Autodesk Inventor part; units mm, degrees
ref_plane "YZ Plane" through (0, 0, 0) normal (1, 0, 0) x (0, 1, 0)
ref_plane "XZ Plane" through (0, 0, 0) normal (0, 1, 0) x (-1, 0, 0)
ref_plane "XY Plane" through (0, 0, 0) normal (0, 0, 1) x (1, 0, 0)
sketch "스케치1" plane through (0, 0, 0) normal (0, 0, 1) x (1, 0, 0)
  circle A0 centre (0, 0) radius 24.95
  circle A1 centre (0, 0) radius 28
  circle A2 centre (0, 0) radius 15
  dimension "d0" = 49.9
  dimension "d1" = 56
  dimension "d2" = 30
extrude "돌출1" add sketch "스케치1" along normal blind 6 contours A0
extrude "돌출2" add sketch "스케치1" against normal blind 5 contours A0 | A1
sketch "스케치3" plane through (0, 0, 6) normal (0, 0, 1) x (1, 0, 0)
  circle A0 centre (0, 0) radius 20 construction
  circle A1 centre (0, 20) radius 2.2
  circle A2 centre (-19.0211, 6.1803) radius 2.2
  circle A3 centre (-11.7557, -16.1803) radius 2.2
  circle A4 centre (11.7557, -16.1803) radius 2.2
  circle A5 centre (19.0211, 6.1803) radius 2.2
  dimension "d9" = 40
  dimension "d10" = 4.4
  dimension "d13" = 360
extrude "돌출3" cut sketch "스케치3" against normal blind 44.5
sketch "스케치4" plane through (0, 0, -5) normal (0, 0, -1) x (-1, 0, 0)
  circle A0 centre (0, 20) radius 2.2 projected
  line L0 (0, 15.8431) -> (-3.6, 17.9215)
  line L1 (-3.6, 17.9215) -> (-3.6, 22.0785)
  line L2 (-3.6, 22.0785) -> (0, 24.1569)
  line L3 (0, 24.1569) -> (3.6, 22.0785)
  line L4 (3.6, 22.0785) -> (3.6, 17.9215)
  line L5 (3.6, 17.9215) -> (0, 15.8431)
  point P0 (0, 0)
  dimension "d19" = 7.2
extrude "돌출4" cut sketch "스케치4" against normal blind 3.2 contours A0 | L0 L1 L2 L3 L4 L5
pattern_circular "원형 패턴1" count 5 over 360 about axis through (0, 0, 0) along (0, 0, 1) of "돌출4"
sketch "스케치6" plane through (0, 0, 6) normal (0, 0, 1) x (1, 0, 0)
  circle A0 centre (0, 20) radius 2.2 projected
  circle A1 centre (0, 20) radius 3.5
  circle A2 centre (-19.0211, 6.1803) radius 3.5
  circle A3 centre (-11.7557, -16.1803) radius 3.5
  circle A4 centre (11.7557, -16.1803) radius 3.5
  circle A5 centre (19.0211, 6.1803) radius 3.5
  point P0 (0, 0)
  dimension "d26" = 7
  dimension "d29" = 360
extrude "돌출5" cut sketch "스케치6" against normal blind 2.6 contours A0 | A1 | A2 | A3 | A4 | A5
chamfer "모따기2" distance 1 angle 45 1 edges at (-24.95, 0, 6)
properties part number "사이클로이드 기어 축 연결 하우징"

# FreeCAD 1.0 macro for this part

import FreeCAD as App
import Part
import Sketcher

V = App.Vector
Q = App.Units.Quantity


def edges_at(feature, points):
    """Names of the edges that pass closest to the given points."""
    edges = feature.Shape.Edges
    near = lambda p: min(range(len(edges)), key=lambda i: edges[i].distToShape(Part.Vertex(*p))[0])
    return sorted({f"Edge{near(p) + 1}" for p in points})

doc = App.newDocument("Part")
body = doc.addObject("PartDesign::Body", "Body")

# Sketch on XY plane
sketch1 = doc.addObject("Sketcher::SketchObject", "Sketch")
body.addObject(sketch1)
sketch1.AttachmentSupport = (doc.XY_Plane, [""])
sketch1.MapMode = "FlatFace"
sketch1.addGeometry(Part.Circle(V(0, 0, 0), V(0, 0, 1), 24.95), False)
sketch1.addGeometry(Part.Circle(V(0, 0, 0), V(0, 0, 1), 15), False)
sketch1.addConstraint(Sketcher.Constraint("Coincident", 0, 3, -1, 1))
sketch1.addConstraint(Sketcher.Constraint("Coincident", 1, 3, -1, 1))
sketch1.addConstraint(Sketcher.Constraint("Diameter", 1, Q("30 mm")))
sketch1.addConstraint(Sketcher.Constraint("Diameter", 0, Q("49.9 mm")))
pad1 = doc.addObject("PartDesign::Pad", "Pad")
body.addObject(pad1)
pad1.Profile = sketch1
pad1.Length = 6

# Sketch on XY plane
sketch2 = doc.addObject("Sketcher::SketchObject", "Sketch001")
body.addObject(sketch2)
sketch2.AttachmentSupport = (doc.XY_Plane, [""])
sketch2.MapMode = "FlatFace"
sketch2.addGeometry(Part.Circle(V(0, 0, 0), V(0, 0, 1), 28), False)
sketch2.addGeometry(Part.Circle(V(0, 0, 0), V(0, 0, 1), 15), False)
sketch2.addConstraint(Sketcher.Constraint("Coincident", 0, 3, -1, 1))
sketch2.addConstraint(Sketcher.Constraint("Coincident", 1, 3, -1, 1))
sketch2.addConstraint(Sketcher.Constraint("Diameter", 0, Q("56 mm")))
sketch2.addConstraint(Sketcher.Constraint("Diameter", 1, Q("30 mm")))
pad2 = doc.addObject("PartDesign::Pad", "Pad001")
body.addObject(pad2)
pad2.Profile = sketch2
pad2.Length = 5
pad2.Reversed = True

# Sketch on XY plane
sketch3 = doc.addObject("Sketcher::SketchObject", "Sketch002")
body.addObject(sketch3)
sketch3.AttachmentSupport = (doc.XY_Plane, [""])
sketch3.MapMode = "FlatFace"
sketch3.AttachmentOffset = App.Placement(V(0, 0, 6), App.Rotation())
sketch3.addGeometry(Part.Circle(V(0, 20, 0), V(0, 0, 1), 2.2), False)
sketch3.addGeometry(Part.Circle(V(-19.0211, 6.1803, 0), V(0, 0, 1), 2.2), False)
sketch3.addGeometry(Part.Circle(V(-11.7557, -16.1803, 0), V(0, 0, 1), 2.2), False)
sketch3.addGeometry(Part.Circle(V(11.7557, -16.1803, 0), V(0, 0, 1), 2.2), False)
sketch3.addGeometry(Part.Circle(V(19.0211, 6.1803, 0), V(0, 0, 1), 2.2), False)
sketch3.addConstraint(Sketcher.Constraint("Equal", 0, 1))
sketch3.addConstraint(Sketcher.Constraint("Equal", 1, 2))
sketch3.addConstraint(Sketcher.Constraint("Equal", 2, 3))
sketch3.addConstraint(Sketcher.Constraint("Equal", 3, 4))
sketch3.addConstraint(Sketcher.Constraint("Symmetric", 2, 3, 3, 3, -2))
sketch3.addConstraint(Sketcher.Constraint("Symmetric", 1, 3, 4, 3, -2))
sketch3.addConstraint(Sketcher.Constraint("PointOnObject", 0, 3, -2))
sketch3.addConstraint(Sketcher.Constraint("Diameter", 0, Q("4.4 mm")))
sketch3.addConstraint(Sketcher.Constraint("DistanceY", -1, 1, 0, 3, Q("20 mm")))
sketch3.addConstraint(Sketcher.Constraint("DistanceX", 1, 3, -1, 1, Q("19.021 mm")))
sketch3.addConstraint(Sketcher.Constraint("DistanceY", -1, 1, 1, 3, Q("6.1803 mm")))
sketch3.addConstraint(Sketcher.Constraint("DistanceX", 2, 3, -1, 1, Q("11.7557 mm")))
sketch3.addConstraint(Sketcher.Constraint("DistanceY", 2, 3, -1, 1, Q("16.1803 mm")))
pocket1 = doc.addObject("PartDesign::Pocket", "Pocket")
body.addObject(pocket1)
pocket1.Profile = sketch3
pocket1.Length = 44.5

# Sketch on XY plane
sketch4 = doc.addObject("Sketcher::SketchObject", "Sketch003")
body.addObject(sketch4)
sketch4.AttachmentSupport = (doc.XY_Plane, [""])
sketch4.MapMode = "FlatFace"
sketch4.AttachmentOffset = App.Placement(V(0, 0, -5), App.Rotation())
sketch4.addGeometry(Part.LineSegment(V(3.6, 17.9215, 0), V(0, 15.8431, 0)), False)
sketch4.addGeometry(Part.LineSegment(V(0, 15.8431, 0), V(-3.6, 17.9215, 0)), False)
sketch4.addGeometry(Part.LineSegment(V(-3.6, 17.9215, 0), V(-3.6, 22.0785, 0)), False)
sketch4.addGeometry(Part.LineSegment(V(-3.6, 22.0785, 0), V(0, 24.1569, 0)), False)
sketch4.addGeometry(Part.LineSegment(V(0, 24.1569, 0), V(3.6, 22.0785, 0)), False)
sketch4.addGeometry(Part.LineSegment(V(3.6, 22.0785, 0), V(3.6, 17.9215, 0)), False)
sketch4.addConstraint(Sketcher.Constraint("Coincident", 0, 2, 1, 1))
sketch4.addConstraint(Sketcher.Constraint("Coincident", 1, 2, 2, 1))
sketch4.addConstraint(Sketcher.Constraint("Coincident", 2, 2, 3, 1))
sketch4.addConstraint(Sketcher.Constraint("Coincident", 3, 2, 4, 1))
sketch4.addConstraint(Sketcher.Constraint("Coincident", 4, 2, 5, 1))
sketch4.addConstraint(Sketcher.Constraint("Coincident", 5, 2, 0, 1))
sketch4.addConstraint(Sketcher.Constraint("Vertical", 2))
sketch4.addConstraint(Sketcher.Constraint("Vertical", 5))
sketch4.addConstraint(Sketcher.Constraint("Symmetric", 2, 2, 4, 2, -2))
sketch4.addConstraint(Sketcher.Constraint("PointOnObject", 0, 2, -2))
sketch4.addConstraint(Sketcher.Constraint("PointOnObject", 3, 2, -2))
sketch4.addConstraint(Sketcher.Constraint("Parallel", 0, 3))
sketch4.addConstraint(Sketcher.Constraint("Parallel", 1, 4))
sketch4.addConstraint(Sketcher.Constraint("DistanceX", 2, 2, 4, 2, Q("7.2 mm")))
sketch4.addConstraint(Sketcher.Constraint("Angle", 0, Q("-150.0007 deg")))
sketch4.addConstraint(Sketcher.Constraint("DistanceY", 2, 1, 2, 2, Q("4.157 mm")))
sketch4.addConstraint(Sketcher.Constraint("DistanceY", -1, 1, 0, 2, Q("15.843 mm")))
pocket2 = doc.addObject("PartDesign::Pocket", "Pocket001")
body.addObject(pocket2)
pocket2.Profile = sketch4
pocket2.Length = 3.2
pocket2.Reversed = True
doc.recompute()

polarpattern = doc.addObject("PartDesign::PolarPattern", "PolarPattern")
body.addObject(polarpattern)
polarpattern.Originals = [pocket2]
polarpattern.Axis = (doc.Z_Axis, [""])
polarpattern.Angle = 360
polarpattern.Occurrences = 5
body.Tip = polarpattern

# Sketch on XY plane
sketch5 = doc.addObject("Sketcher::SketchObject", "Sketch004")
body.addObject(sketch5)
sketch5.AttachmentSupport = (doc.XY_Plane, [""])
sketch5.MapMode = "FlatFace"
sketch5.AttachmentOffset = App.Placement(V(0, 0, 6), App.Rotation())
sketch5.addGeometry(Part.Circle(V(0, 20, 0), V(0, 0, 1), 3.5), False)
sketch5.addGeometry(Part.Circle(V(-19.0211, 6.1803, 0), V(0, 0, 1), 3.5), False)
sketch5.addGeometry(Part.Circle(V(-11.7557, -16.1803, 0), V(0, 0, 1), 3.5), False)
sketch5.addGeometry(Part.Circle(V(11.7557, -16.1803, 0), V(0, 0, 1), 3.5), False)
sketch5.addGeometry(Part.Circle(V(19.0211, 6.1803, 0), V(0, 0, 1), 3.5), False)
sketch5.addConstraint(Sketcher.Constraint("Equal", 0, 1))
sketch5.addConstraint(Sketcher.Constraint("Equal", 1, 2))
sketch5.addConstraint(Sketcher.Constraint("Equal", 2, 3))
sketch5.addConstraint(Sketcher.Constraint("Equal", 3, 4))
sketch5.addConstraint(Sketcher.Constraint("Symmetric", 2, 3, 3, 3, -2))
sketch5.addConstraint(Sketcher.Constraint("Symmetric", 1, 3, 4, 3, -2))
sketch5.addConstraint(Sketcher.Constraint("PointOnObject", 0, 3, -2))
sketch5.addConstraint(Sketcher.Constraint("Diameter", 0, Q("7 mm")))
sketch5.addConstraint(Sketcher.Constraint("DistanceY", -1, 1, 0, 3, Q("20 mm")))
sketch5.addConstraint(Sketcher.Constraint("DistanceX", 1, 3, -1, 1, Q("19.021 mm")))
sketch5.addConstraint(Sketcher.Constraint("DistanceY", -1, 1, 1, 3, Q("6.1803 mm")))
sketch5.addConstraint(Sketcher.Constraint("DistanceX", 2, 3, -1, 1, Q("11.7557 mm")))
sketch5.addConstraint(Sketcher.Constraint("DistanceY", 2, 3, -1, 1, Q("16.1803 mm")))
pocket3 = doc.addObject("PartDesign::Pocket", "Pocket002")
body.addObject(pocket3)
pocket3.Profile = sketch5
pocket3.Length = 2.6
doc.recompute()

chamfer = doc.addObject("PartDesign::Chamfer", "Chamfer")
body.addObject(chamfer)
chamfer.Base = (pocket3, edges_at(pocket3, [(-24.95, 0, 6)]))
chamfer.Size = 1

doc.recompute()
